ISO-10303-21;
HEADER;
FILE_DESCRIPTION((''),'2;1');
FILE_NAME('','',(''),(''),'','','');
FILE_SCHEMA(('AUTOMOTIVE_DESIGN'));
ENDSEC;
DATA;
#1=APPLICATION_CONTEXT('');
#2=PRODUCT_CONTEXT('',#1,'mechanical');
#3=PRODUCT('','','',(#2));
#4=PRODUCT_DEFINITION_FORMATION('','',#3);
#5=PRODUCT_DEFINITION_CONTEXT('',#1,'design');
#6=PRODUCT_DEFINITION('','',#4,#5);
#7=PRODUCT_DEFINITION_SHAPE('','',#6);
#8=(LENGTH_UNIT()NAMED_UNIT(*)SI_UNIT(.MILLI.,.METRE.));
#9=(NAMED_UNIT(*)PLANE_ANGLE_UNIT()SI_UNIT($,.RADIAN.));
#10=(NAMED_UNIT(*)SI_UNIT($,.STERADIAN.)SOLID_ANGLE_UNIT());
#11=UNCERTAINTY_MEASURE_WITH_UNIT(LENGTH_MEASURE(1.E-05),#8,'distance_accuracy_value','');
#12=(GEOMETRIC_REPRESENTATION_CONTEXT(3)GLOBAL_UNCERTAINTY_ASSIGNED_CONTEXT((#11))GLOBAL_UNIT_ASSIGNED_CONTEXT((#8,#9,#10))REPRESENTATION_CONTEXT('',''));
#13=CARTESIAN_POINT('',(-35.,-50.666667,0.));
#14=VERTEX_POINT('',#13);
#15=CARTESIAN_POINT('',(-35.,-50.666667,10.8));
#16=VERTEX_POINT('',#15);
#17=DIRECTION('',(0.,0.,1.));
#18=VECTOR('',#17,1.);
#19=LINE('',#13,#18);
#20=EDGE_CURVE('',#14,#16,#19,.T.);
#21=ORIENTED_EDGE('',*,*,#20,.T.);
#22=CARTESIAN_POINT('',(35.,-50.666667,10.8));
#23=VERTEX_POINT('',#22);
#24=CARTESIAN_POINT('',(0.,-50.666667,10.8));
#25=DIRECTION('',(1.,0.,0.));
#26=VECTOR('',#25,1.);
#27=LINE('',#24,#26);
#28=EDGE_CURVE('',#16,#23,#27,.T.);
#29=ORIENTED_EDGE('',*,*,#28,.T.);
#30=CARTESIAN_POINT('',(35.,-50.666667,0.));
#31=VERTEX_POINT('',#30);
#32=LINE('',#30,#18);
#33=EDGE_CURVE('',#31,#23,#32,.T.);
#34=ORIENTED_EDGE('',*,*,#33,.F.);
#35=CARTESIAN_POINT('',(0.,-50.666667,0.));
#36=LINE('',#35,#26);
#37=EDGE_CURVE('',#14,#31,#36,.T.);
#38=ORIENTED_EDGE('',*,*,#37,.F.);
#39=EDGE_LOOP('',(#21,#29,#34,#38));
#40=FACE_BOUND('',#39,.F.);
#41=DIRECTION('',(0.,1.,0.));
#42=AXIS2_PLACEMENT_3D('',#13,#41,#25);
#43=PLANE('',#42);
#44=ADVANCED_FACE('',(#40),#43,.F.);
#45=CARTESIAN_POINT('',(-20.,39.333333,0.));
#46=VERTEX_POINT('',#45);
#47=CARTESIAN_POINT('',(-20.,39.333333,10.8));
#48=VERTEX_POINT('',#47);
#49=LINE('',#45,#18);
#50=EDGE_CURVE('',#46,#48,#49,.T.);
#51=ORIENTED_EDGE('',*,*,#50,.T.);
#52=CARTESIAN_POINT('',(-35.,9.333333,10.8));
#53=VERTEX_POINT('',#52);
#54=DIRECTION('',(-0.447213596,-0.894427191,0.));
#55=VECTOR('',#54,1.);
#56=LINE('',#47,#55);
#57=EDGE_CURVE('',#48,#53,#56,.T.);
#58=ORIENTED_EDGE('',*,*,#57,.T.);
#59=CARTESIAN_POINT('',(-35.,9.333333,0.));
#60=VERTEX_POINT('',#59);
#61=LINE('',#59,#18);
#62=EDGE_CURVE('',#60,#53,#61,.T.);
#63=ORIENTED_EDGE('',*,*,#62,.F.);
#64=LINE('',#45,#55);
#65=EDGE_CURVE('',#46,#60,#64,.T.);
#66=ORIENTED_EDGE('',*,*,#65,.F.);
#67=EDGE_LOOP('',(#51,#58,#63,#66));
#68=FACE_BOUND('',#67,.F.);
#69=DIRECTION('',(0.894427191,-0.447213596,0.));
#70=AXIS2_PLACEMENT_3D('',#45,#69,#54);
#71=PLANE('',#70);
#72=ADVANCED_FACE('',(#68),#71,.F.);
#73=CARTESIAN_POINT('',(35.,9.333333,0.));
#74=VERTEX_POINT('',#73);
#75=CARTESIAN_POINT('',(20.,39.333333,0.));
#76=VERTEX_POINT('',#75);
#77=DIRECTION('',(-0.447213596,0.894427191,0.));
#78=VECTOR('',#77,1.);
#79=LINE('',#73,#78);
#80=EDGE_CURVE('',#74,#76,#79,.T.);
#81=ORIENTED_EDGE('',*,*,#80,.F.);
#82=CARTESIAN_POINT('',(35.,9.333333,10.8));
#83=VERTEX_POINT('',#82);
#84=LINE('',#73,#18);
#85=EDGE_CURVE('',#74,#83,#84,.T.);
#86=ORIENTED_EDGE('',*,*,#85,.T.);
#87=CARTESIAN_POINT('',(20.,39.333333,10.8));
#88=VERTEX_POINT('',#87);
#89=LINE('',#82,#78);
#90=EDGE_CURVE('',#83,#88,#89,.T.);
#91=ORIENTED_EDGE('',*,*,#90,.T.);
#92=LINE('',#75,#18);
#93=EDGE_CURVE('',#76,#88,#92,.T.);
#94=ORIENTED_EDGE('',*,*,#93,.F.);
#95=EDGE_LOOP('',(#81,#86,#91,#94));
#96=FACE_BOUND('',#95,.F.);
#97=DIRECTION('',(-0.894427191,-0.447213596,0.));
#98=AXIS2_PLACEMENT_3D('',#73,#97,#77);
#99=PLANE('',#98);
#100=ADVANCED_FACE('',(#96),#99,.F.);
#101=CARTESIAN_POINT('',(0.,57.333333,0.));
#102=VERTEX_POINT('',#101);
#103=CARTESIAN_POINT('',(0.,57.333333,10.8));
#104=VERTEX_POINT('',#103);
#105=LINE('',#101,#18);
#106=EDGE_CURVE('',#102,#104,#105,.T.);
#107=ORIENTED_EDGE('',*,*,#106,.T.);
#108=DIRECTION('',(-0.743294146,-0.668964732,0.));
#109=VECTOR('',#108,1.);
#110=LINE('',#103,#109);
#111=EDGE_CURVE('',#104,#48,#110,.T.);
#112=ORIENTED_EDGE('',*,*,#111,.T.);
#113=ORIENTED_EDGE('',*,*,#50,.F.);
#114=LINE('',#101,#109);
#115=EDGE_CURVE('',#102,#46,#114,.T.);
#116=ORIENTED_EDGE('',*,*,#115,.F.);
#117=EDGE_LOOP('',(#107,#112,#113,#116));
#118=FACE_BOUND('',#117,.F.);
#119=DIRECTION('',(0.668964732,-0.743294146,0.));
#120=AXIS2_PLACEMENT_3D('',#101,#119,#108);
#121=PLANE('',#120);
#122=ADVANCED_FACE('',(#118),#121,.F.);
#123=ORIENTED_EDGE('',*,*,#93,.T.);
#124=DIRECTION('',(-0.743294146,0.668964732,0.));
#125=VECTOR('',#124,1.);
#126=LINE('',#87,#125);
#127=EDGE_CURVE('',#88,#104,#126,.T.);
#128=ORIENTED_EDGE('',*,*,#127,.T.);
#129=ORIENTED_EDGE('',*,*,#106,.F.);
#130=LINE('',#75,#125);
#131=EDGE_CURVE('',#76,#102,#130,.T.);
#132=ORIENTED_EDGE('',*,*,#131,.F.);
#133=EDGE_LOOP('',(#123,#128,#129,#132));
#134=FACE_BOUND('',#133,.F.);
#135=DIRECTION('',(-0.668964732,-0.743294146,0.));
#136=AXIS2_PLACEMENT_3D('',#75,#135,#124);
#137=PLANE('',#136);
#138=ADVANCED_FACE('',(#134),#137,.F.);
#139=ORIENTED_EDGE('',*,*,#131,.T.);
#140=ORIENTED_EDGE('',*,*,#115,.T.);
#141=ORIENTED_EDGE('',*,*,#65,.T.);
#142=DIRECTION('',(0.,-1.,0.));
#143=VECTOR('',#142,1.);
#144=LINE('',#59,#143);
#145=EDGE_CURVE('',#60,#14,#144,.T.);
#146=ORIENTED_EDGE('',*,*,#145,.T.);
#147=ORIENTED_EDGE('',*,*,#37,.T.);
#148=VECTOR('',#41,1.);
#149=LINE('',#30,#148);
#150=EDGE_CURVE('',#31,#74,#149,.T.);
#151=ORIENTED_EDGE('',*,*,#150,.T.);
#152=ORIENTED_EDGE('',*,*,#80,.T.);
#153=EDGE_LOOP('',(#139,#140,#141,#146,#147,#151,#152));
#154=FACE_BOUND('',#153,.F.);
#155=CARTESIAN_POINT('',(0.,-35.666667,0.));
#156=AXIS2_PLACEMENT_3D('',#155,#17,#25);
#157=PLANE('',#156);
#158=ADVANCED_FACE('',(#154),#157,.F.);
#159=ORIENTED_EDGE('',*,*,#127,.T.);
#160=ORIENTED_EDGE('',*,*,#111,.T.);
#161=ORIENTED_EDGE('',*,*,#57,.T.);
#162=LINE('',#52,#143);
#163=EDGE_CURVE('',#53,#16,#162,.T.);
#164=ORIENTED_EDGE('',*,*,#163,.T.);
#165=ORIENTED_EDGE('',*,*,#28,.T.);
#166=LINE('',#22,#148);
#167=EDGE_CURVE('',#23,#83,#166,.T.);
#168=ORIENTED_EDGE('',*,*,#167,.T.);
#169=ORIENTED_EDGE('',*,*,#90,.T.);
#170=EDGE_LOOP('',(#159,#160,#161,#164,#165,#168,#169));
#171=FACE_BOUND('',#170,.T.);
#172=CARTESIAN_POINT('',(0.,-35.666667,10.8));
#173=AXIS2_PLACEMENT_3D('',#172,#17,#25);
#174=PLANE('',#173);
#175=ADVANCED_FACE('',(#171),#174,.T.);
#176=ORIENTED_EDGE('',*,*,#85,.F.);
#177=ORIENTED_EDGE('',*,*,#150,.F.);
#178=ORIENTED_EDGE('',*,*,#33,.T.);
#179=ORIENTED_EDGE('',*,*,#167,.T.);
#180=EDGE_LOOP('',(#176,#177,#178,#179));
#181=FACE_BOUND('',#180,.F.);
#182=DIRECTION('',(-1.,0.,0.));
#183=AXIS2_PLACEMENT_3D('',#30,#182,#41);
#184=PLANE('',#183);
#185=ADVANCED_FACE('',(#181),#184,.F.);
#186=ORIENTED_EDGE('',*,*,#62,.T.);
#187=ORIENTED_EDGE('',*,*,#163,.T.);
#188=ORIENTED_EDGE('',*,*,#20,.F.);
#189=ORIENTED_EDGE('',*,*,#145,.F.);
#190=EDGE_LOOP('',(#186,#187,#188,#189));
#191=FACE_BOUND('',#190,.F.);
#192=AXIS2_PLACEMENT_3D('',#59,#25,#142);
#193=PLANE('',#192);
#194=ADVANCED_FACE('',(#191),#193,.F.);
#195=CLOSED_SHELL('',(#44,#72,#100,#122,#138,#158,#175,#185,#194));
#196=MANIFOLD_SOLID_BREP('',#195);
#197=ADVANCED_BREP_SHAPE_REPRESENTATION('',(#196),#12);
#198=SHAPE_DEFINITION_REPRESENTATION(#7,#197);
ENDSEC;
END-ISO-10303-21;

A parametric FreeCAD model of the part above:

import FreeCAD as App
import Part
import Sketcher

V = App.Vector


def add_polygon(sketch, points):
    """Adds a closed chain of lines whose ends are joined by coincident constraints."""
    first, n = sketch.GeometryCount, len(points)
    for a, b in zip(points, points[1:] + points[:1]):
        sketch.addGeometry(Part.LineSegment(App.Vector(*a, 0), App.Vector(*b, 0)), False)
    for i in range(n):
        sketch.addConstraint(Sketcher.Constraint("Coincident", first + i, 2, first + (i + 1) % n, 1))

doc = App.newDocument("Part")
body = doc.addObject("PartDesign::Body", "Body")

# Sketch on XY plane
sketch1 = body.newObject("Sketcher::SketchObject", "Sketch")
sketch1.AttachmentSupport = (doc.getObject("XY_Plane"), [""])
sketch1.MapMode = "FlatFace"
add_polygon(sketch1, [(-35, -50.666667), (35, -50.666667), (35, 9.333333), (20, 39.333333), (0, 57.333333), (-20, 39.333333), (-35, 9.333333)])  # lines 0-6
sketch1.addConstraint([
    Sketcher.Constraint("Horizontal", 0),
    Sketcher.Constraint("Vertical", 1),
    Sketcher.Constraint("Vertical", 6),
    Sketcher.Constraint("Symmetric", 2, 2, 4, 2, -2),
    Sketcher.Constraint("Symmetric", 1, 2, 5, 2, -2),
    Sketcher.Constraint("PointOnObject", 3, 2, -2),
    Sketcher.Constraint("DistanceX", 0, 1, 0, 2, 70.0),
    Sketcher.Constraint("DistanceY", 1, 1, 1, 2, 60.0),
    Sketcher.Constraint("DistanceX", -1, 1, 2, 2, 20.0),
    Sketcher.Constraint("DistanceY", 1, 2, 2, 2, 30.0),
    Sketcher.Constraint("DistanceY", 2, 2, 3, 2, 18.0),
    Sketcher.Constraint("DistanceY", 0, 2, -1, 1, 50.666667),
])
pad1 = body.newObject("PartDesign::Pad", "Pad")
pad1.Profile = sketch1
pad1.Length = 10.8

doc.recompute()
